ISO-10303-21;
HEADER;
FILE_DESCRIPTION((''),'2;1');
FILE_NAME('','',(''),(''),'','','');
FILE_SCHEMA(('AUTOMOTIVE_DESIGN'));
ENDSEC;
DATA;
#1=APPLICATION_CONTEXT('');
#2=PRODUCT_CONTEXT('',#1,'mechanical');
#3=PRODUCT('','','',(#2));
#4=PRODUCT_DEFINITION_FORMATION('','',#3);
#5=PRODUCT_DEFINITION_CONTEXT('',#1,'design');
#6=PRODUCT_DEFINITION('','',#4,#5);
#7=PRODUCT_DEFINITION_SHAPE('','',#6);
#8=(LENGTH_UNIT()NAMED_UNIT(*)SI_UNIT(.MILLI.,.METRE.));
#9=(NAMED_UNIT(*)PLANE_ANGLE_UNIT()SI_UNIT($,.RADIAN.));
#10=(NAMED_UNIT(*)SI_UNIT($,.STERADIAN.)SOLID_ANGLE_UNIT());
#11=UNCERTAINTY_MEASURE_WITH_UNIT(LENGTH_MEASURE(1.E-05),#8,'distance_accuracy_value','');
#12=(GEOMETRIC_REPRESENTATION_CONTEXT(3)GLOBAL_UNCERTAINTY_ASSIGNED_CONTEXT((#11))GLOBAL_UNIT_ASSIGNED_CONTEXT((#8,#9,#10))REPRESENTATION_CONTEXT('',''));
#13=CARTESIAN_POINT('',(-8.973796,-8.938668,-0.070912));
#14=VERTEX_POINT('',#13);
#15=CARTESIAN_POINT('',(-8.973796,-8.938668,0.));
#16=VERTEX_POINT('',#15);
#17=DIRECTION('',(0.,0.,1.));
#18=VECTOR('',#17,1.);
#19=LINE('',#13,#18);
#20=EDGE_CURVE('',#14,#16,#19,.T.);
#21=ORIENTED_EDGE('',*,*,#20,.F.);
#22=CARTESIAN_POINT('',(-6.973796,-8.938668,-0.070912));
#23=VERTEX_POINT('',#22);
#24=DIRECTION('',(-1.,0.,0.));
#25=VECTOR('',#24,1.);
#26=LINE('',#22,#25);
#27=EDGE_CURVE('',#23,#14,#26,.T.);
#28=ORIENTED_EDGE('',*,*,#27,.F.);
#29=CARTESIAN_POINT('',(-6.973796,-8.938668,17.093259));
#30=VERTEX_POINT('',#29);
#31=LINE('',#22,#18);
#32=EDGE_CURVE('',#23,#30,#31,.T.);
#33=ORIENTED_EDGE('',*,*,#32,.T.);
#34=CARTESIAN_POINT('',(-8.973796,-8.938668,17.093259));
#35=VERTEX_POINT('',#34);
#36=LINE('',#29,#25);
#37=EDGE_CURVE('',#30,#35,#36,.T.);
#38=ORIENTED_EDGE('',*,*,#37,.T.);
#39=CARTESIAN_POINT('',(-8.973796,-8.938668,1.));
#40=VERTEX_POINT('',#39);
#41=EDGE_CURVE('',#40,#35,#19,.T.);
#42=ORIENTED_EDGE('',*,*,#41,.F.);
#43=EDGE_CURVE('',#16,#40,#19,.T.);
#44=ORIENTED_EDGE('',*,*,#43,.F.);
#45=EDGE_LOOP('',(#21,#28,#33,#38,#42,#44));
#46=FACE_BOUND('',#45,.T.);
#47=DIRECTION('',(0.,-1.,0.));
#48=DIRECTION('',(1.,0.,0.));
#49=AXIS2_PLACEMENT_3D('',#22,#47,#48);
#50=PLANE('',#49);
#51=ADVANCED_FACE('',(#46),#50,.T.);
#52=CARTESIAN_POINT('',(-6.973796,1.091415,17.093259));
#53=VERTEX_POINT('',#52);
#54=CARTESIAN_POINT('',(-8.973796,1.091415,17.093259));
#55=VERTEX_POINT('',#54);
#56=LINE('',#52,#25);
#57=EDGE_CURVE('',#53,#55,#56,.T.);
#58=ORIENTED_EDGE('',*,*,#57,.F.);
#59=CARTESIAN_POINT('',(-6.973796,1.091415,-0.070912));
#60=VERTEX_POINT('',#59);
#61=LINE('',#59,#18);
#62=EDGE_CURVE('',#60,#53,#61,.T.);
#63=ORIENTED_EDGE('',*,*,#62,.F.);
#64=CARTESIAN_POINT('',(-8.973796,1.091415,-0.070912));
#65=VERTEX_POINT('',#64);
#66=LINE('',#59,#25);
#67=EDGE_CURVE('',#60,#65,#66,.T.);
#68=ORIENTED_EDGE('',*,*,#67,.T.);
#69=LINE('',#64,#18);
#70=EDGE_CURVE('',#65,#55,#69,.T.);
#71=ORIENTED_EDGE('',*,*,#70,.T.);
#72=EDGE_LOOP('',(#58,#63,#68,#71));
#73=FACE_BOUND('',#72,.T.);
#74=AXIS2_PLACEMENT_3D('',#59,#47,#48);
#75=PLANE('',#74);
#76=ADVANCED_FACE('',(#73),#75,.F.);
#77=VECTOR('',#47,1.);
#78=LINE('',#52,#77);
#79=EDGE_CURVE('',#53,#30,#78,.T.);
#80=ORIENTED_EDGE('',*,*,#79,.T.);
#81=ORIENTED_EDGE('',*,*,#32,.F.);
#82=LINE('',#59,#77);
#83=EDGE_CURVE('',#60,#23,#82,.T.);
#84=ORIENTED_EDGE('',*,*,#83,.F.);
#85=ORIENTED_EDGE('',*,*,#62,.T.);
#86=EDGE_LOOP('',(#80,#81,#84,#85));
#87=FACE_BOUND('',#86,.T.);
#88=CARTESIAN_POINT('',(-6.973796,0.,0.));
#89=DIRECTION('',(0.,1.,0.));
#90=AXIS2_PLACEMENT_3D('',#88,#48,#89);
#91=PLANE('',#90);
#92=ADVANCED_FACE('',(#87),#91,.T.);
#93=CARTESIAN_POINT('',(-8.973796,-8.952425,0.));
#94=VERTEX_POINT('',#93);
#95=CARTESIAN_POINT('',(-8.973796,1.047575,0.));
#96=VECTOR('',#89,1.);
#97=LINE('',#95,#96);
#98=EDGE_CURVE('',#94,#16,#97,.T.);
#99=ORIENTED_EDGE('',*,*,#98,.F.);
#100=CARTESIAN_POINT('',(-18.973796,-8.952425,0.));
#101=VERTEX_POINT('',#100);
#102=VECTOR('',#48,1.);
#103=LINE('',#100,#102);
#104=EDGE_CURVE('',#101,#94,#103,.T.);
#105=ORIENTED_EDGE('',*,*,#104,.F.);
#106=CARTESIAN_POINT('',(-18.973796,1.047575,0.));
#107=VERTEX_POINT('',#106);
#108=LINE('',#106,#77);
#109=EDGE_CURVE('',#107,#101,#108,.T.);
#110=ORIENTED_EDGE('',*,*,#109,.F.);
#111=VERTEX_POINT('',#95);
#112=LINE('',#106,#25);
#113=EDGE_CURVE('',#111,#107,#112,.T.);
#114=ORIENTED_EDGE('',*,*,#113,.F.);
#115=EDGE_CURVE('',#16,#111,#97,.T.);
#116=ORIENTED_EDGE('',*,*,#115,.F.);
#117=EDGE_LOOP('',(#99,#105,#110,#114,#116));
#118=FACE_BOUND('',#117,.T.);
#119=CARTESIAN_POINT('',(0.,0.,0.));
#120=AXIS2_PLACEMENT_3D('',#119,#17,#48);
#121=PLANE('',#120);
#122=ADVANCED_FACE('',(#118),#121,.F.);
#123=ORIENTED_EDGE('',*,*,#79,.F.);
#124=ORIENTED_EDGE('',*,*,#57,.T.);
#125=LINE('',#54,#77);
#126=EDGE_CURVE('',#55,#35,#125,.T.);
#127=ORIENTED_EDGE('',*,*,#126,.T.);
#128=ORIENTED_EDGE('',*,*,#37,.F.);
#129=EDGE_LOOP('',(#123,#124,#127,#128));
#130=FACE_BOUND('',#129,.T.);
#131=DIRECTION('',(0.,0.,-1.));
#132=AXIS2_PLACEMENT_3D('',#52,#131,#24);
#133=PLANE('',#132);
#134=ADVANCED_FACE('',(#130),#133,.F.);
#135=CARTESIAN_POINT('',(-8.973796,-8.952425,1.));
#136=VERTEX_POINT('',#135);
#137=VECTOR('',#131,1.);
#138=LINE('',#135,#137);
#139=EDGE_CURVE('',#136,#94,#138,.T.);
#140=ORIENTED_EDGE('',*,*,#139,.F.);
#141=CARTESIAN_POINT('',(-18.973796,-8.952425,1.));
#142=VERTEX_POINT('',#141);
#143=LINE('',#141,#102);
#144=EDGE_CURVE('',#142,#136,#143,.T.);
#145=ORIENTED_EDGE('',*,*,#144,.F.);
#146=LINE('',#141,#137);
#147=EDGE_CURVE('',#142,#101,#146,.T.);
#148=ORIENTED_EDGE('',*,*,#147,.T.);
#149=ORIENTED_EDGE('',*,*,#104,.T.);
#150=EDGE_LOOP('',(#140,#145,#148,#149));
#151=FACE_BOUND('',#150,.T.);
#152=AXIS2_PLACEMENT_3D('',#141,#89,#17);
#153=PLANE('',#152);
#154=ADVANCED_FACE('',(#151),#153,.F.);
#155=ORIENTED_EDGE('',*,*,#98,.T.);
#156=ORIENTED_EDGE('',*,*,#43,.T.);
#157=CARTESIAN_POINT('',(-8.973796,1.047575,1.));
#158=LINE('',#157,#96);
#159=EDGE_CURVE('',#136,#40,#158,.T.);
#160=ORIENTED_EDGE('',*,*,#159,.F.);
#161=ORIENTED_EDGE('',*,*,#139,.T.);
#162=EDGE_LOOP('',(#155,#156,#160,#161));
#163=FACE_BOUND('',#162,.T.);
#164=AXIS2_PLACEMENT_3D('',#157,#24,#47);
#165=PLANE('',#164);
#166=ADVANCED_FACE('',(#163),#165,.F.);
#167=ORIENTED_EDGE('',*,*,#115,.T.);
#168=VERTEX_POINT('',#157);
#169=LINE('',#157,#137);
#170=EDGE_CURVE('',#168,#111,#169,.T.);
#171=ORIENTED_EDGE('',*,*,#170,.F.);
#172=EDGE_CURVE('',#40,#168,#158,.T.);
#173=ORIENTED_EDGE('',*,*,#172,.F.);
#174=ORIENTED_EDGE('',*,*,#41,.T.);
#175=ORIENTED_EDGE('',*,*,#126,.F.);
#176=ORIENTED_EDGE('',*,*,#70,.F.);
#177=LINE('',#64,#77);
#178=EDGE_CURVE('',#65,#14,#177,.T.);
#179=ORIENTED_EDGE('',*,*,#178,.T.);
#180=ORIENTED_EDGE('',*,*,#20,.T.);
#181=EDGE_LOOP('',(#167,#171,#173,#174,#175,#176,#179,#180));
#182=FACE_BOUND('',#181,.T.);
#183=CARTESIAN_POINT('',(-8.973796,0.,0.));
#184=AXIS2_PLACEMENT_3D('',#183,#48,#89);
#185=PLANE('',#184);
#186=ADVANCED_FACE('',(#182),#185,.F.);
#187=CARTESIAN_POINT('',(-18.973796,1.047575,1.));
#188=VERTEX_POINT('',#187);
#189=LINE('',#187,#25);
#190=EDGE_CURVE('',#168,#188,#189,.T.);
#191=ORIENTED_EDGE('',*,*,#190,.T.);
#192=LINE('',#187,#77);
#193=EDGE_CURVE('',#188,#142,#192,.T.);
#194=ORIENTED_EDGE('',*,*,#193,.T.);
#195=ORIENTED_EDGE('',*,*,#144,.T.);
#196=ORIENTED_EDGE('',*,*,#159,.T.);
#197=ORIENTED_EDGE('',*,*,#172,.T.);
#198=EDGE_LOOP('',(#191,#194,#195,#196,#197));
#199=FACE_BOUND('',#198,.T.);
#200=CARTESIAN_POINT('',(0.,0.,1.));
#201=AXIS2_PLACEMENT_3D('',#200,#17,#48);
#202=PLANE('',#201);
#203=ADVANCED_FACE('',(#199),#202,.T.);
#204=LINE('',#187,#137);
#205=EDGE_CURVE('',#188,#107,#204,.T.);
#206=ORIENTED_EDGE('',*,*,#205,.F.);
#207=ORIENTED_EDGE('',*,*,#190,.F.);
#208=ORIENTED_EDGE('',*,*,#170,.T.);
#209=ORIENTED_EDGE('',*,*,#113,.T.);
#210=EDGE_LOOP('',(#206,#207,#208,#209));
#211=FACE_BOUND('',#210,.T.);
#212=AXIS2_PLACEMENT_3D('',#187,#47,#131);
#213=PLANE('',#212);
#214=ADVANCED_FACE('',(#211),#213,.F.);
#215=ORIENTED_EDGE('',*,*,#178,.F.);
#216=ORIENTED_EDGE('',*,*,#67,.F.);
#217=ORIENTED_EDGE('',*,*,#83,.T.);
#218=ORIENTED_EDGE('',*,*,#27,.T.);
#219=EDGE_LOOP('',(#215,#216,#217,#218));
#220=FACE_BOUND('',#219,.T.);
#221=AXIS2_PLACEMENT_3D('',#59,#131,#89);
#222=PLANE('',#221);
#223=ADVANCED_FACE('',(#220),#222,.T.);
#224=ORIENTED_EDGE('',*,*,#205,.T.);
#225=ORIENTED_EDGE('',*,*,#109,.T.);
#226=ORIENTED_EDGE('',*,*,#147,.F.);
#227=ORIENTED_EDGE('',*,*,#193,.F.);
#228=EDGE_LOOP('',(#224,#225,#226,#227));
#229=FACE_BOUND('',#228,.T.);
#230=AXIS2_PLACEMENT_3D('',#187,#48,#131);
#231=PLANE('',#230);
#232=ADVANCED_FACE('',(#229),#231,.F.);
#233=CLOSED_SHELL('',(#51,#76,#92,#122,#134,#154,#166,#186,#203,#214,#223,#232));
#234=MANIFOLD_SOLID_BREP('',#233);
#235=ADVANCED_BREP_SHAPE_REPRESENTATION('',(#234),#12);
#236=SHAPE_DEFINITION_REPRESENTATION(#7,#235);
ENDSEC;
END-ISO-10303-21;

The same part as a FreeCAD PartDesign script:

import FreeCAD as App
import Part
import Sketcher
Q = App.Units.Quantity


def add_polygon(sketch, points):
    """Adds a closed chain of lines whose ends are joined by coincident constraints."""
    first, n = sketch.GeometryCount, len(points)
    for a, b in zip(points, points[1:] + points[:1]):
        sketch.addGeometry(Part.LineSegment(App.Vector(*a, 0), App.Vector(*b, 0)), False)
    for i in range(n):
        sketch.addConstraint(Sketcher.Constraint("Coincident", first + i, 2, first + (i + 1) % n, 1))

doc = App.newDocument("Part")
body = doc.addObject("PartDesign::Body", "Body")

sketch1 = doc.addObject("Sketcher::SketchObject", "Sketch")
body.addObject(sketch1)
sketch1.AttachmentSupport = (doc.XY_Plane, [""])
sketch1.MapMode = "FlatFace"
add_polygon(sketch1, [(-18.973796, 1.047575), (-18.973796, -8.952425), (-8.973796, -8.952425), (-8.973796, 1.047575)])
sketch1.addConstraint(Sketcher.Constraint("Vertical", 0))
sketch1.addConstraint(Sketcher.Constraint("Horizontal", 1))
sketch1.addConstraint(Sketcher.Constraint("Vertical", 2))
sketch1.addConstraint(Sketcher.Constraint("Horizontal", 3))
sketch1.addConstraint(Sketcher.Constraint("Equal", 3, 0))
sketch1.addConstraint(Sketcher.Constraint("DistanceX", 1, 1, 1, 2, Q("10 mm")))
sketch1.addConstraint(Sketcher.Constraint("DistanceX", 0, 2, -1, 1, Q("18.973796 mm")))
sketch1.addConstraint(Sketcher.Constraint("DistanceY", 0, 2, -1, 1, Q("8.952425 mm")))
pad1 = doc.addObject("PartDesign::Pad", "Pad")
body.addObject(pad1)
pad1.Profile = sketch1
pad1.Length = 1

sketch2 = doc.addObject("Sketcher::SketchObject", "Sketch001")
body.addObject(sketch2)
sketch2.AttachmentSupport = (doc.YZ_Plane, [""])
sketch2.MapMode = "FlatFace"
sketch2.AttachmentOffset = App.Placement(App.Vector(0, 0, -8.973796), App.Rotation())
add_polygon(sketch2, [(1.091415, 17.093259), (-8.938668, 17.093259), (-8.938668, -0.070912), (1.091415, -0.070912)])
sketch2.addConstraint(Sketcher.Constraint("Horizontal", 0))
sketch2.addConstraint(Sketcher.Constraint("Vertical", 1))
sketch2.addConstraint(Sketcher.Constraint("Horizontal", 2))
sketch2.addConstraint(Sketcher.Constraint("Vertical", 3))
sketch2.addConstraint(Sketcher.Constraint("DistanceY", 1, 2, 1, 1, Q("17.164171 mm")))
sketch2.addConstraint(Sketcher.Constraint("DistanceX", 0, 2, 0, 1, Q("10.030082 mm")))
sketch2.addConstraint(Sketcher.Constraint("DistanceY", -1, 1, 0, 2, Q("17.093259 mm")))
sketch2.addConstraint(Sketcher.Constraint("DistanceX", 0, 2, -1, 1, Q("8.938668 mm")))
pad2 = doc.addObject("PartDesign::Pad", "Pad001")
body.addObject(pad2)
pad2.Profile = sketch2
pad2.Length = 2

doc.recompute()
